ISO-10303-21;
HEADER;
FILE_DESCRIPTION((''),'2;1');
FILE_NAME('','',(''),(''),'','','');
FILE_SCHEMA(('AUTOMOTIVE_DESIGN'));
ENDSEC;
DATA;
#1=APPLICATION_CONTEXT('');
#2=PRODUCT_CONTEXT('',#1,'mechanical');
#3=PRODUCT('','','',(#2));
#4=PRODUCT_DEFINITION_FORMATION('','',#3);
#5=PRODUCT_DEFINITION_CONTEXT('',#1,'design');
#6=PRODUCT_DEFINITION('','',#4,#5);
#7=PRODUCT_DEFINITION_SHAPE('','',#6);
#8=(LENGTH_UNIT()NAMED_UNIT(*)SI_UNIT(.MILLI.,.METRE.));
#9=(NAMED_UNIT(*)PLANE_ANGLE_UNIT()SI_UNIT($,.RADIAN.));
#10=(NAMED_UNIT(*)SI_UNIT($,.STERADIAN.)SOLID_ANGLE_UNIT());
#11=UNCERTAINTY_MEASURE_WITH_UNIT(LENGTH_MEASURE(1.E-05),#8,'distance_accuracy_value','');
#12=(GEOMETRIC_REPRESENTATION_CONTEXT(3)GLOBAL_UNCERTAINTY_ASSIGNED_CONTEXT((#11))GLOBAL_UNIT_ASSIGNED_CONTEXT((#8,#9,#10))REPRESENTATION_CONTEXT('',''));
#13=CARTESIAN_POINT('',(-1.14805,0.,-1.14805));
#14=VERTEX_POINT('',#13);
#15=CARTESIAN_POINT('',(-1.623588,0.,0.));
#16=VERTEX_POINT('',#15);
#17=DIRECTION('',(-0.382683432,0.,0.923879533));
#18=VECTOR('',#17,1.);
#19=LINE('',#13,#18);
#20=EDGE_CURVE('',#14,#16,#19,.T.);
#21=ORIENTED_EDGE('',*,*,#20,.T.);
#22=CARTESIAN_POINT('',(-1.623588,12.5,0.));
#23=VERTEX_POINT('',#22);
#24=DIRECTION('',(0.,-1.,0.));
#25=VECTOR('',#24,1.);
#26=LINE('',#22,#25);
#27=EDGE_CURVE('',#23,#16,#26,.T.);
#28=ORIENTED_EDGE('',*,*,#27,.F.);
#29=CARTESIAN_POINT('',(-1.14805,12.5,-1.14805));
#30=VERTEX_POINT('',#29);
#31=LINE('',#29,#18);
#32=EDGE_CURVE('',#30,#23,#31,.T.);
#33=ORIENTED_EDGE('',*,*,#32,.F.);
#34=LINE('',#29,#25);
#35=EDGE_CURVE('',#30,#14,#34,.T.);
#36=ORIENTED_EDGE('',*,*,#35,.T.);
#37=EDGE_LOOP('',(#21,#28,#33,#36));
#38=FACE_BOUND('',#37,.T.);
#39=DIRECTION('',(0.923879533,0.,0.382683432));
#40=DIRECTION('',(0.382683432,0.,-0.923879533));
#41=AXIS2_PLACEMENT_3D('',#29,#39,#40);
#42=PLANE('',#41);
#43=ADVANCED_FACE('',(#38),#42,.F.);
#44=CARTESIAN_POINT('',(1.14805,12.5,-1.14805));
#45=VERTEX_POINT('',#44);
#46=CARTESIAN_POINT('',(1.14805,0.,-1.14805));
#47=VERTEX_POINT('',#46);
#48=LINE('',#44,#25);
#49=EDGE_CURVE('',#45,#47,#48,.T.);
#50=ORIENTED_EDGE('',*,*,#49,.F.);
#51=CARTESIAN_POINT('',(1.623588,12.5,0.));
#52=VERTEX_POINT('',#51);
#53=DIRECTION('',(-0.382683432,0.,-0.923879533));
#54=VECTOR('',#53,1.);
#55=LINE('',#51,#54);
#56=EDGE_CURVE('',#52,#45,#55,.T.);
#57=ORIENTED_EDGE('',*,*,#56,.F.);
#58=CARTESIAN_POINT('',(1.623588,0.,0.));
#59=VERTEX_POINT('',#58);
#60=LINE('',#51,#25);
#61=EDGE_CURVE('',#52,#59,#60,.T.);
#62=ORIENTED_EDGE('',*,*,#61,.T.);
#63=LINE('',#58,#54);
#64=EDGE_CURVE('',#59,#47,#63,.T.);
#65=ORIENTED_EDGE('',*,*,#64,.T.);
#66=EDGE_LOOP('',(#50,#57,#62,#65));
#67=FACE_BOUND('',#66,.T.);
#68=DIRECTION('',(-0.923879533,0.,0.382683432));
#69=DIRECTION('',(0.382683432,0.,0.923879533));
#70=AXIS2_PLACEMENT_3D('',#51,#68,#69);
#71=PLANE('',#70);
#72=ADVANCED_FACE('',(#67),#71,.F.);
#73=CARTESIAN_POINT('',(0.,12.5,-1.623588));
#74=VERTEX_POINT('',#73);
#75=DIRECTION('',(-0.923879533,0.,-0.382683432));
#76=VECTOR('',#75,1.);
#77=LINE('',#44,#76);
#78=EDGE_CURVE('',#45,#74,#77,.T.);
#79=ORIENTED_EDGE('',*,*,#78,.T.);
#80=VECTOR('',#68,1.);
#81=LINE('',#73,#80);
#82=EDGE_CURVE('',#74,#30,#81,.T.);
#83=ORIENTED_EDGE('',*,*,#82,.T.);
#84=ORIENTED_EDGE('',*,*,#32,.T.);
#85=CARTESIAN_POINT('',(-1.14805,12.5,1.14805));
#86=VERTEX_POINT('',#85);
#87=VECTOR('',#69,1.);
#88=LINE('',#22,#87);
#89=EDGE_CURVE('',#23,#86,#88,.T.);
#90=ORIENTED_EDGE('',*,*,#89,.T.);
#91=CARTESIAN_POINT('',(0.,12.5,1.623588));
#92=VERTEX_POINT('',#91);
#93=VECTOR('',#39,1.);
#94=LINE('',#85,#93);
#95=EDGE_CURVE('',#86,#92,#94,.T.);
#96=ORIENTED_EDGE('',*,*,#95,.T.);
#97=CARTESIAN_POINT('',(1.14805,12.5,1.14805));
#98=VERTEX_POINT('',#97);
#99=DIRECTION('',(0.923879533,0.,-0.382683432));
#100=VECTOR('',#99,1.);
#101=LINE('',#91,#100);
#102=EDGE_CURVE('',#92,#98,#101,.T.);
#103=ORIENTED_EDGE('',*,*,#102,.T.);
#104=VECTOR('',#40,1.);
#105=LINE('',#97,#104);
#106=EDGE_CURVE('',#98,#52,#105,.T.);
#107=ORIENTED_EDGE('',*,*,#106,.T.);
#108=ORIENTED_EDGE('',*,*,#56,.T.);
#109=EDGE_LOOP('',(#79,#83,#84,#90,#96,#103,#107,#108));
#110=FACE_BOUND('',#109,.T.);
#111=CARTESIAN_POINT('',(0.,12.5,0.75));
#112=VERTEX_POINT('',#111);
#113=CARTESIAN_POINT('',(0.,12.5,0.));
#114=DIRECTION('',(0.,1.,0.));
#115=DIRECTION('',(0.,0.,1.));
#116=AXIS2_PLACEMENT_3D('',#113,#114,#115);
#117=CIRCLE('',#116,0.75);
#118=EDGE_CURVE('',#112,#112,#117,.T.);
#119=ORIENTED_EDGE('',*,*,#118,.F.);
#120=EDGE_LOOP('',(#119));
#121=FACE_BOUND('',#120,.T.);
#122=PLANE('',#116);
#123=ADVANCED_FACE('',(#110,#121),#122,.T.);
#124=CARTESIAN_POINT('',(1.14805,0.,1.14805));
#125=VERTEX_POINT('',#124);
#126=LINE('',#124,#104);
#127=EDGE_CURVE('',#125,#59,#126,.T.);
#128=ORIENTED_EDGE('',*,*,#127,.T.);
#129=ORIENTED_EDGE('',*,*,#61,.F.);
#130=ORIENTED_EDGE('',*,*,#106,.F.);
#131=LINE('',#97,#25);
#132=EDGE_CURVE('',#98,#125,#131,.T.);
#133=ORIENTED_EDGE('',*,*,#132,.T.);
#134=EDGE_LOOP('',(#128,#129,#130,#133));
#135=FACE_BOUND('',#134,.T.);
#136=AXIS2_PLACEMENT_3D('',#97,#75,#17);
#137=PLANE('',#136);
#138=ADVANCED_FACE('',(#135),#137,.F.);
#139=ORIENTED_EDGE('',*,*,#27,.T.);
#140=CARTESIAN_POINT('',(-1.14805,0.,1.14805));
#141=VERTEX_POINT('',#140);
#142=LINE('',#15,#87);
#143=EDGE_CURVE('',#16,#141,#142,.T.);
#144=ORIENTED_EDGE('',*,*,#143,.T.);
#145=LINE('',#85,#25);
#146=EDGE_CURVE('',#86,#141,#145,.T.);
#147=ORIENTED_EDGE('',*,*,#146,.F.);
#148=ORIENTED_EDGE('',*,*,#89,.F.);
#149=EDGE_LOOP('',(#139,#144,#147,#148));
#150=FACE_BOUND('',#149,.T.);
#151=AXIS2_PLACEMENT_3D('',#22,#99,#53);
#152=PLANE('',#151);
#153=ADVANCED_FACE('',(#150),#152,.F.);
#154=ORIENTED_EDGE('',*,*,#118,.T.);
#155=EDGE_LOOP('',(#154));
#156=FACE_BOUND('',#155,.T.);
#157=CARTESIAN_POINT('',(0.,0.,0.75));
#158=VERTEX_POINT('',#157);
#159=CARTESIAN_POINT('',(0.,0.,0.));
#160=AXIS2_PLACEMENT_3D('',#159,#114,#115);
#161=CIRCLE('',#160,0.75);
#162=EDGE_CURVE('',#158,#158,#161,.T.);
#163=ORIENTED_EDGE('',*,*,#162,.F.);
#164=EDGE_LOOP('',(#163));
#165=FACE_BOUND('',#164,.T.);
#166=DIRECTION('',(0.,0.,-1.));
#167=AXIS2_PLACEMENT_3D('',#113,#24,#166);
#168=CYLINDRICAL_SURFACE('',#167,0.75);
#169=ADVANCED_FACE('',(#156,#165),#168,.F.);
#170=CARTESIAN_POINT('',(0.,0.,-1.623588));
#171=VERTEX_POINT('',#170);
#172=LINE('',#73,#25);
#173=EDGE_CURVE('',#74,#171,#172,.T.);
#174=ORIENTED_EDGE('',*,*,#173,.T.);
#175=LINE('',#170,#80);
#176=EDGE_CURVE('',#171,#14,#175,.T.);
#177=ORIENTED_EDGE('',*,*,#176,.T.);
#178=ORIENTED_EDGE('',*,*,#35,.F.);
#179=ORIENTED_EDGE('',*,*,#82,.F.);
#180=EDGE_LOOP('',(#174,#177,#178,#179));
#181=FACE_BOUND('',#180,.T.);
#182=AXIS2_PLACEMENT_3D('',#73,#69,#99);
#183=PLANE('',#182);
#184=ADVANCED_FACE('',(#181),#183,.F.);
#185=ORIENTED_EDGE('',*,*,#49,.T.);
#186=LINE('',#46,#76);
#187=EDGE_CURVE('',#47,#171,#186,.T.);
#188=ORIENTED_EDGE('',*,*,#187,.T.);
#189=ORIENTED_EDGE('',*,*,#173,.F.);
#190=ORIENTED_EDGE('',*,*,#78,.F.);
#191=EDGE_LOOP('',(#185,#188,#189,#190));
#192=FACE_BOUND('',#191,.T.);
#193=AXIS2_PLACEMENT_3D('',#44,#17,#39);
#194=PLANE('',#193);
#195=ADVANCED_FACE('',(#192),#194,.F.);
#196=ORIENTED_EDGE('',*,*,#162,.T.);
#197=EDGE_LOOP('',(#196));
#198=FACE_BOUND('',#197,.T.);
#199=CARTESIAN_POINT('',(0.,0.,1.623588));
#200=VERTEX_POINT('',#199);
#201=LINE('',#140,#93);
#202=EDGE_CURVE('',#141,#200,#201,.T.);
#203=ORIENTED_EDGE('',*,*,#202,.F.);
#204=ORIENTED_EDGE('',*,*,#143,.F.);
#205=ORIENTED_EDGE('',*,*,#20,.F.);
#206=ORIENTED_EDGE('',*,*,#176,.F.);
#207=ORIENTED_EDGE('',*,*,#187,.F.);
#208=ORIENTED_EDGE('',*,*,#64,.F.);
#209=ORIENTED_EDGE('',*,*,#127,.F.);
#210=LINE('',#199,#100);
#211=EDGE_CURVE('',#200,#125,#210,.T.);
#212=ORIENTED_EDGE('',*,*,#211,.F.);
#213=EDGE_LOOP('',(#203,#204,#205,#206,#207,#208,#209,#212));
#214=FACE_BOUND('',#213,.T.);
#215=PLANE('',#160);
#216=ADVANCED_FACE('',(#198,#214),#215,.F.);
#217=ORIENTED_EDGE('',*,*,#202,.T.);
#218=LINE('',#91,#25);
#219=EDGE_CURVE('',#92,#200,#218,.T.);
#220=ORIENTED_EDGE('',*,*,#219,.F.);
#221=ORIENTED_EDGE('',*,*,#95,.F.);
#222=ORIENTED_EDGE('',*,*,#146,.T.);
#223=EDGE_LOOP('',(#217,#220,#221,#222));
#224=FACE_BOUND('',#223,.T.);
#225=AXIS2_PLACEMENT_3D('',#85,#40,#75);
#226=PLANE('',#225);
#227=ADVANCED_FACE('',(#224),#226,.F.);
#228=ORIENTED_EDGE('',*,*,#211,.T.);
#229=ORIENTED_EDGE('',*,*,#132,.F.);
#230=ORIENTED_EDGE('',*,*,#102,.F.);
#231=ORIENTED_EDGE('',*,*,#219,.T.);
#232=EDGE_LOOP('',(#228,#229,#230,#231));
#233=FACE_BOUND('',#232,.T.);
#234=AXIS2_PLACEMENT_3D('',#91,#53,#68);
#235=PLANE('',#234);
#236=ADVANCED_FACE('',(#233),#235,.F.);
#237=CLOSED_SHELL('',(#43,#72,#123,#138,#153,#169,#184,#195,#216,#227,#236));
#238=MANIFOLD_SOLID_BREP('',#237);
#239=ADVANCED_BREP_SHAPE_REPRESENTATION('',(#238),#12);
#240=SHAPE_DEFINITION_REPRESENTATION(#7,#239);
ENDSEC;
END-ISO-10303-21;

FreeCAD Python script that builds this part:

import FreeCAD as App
import Part
import Sketcher
Q = App.Units.Quantity


def add_polygon(sketch, points):
    """Adds a closed chain of lines whose ends are joined by coincident constraints."""
    first, n = sketch.GeometryCount, len(points)
    for a, b in zip(points, points[1:] + points[:1]):
        sketch.addGeometry(Part.LineSegment(App.Vector(*a, 0), App.Vector(*b, 0)), False)
    for i in range(n):
        sketch.addConstraint(Sketcher.Constraint("Coincident", first + i, 2, first + (i + 1) % n, 1))

doc = App.newDocument("Part")
body = doc.addObject("PartDesign::Body", "Body")

# Sketch on XZ plane
sketch1 = doc.addObject("Sketcher::SketchObject", "Sketch")
body.addObject(sketch1)
sketch1.AttachmentSupport = (doc.XZ_Plane, [""])
sketch1.MapMode = "FlatFace"
add_polygon(sketch1, [(1.623588, 0), (1.14805, -1.14805), (0, -1.623588), (-1.14805, -1.14805), (-1.623588, 0), (-1.14805, 1.14805), (0, 1.623588), (1.14805, 1.14805)])  # lines 0-7
sketch1.addGeometry(Part.Circle(App.Vector(0, 0, 0), App.Vector(0, 0, 1), 0.75), False)  # 8
sketch1.addConstraint(Sketcher.Constraint("Coincident", 8, 3, -1, 1))
sketch1.addConstraint(Sketcher.Constraint("Symmetric", 0, 2, 4, 2, -1, 1))
sketch1.addConstraint(Sketcher.Constraint("Symmetric", 1, 2, 5, 2, -1, 1))
sketch1.addConstraint(Sketcher.Constraint("Symmetric", 2, 2, 6, 2, -1, 1))
sketch1.addConstraint(Sketcher.Constraint("Symmetric", 3, 2, 7, 2, -1, 1))
sketch1.addConstraint(Sketcher.Constraint("Symmetric", 0, 2, 2, 2, -2))
sketch1.addConstraint(Sketcher.Constraint("PointOnObject", 1, 2, -2))
sketch1.addConstraint(Sketcher.Constraint("PointOnObject", 3, 2, -1))
sketch1.addConstraint(Sketcher.Constraint("Perpendicular", 0, 2))
sketch1.addConstraint(Sketcher.Constraint("Equal", 0, 1))
sketch1.addConstraint(Sketcher.Constraint("Diameter", 8, 1.5))
sketch1.addConstraint(Sketcher.Constraint("Angle", 0, Q("-112.5 deg")))
sketch1.addConstraint(Sketcher.Constraint("DistanceX", 2, 2, 0, 2, 2.296101))
pad1 = doc.addObject("PartDesign::Pad", "Pad")
body.addObject(pad1)
pad1.Profile = sketch1
pad1.Length = 12.5
pad1.Reversed = True

doc.recompute()
